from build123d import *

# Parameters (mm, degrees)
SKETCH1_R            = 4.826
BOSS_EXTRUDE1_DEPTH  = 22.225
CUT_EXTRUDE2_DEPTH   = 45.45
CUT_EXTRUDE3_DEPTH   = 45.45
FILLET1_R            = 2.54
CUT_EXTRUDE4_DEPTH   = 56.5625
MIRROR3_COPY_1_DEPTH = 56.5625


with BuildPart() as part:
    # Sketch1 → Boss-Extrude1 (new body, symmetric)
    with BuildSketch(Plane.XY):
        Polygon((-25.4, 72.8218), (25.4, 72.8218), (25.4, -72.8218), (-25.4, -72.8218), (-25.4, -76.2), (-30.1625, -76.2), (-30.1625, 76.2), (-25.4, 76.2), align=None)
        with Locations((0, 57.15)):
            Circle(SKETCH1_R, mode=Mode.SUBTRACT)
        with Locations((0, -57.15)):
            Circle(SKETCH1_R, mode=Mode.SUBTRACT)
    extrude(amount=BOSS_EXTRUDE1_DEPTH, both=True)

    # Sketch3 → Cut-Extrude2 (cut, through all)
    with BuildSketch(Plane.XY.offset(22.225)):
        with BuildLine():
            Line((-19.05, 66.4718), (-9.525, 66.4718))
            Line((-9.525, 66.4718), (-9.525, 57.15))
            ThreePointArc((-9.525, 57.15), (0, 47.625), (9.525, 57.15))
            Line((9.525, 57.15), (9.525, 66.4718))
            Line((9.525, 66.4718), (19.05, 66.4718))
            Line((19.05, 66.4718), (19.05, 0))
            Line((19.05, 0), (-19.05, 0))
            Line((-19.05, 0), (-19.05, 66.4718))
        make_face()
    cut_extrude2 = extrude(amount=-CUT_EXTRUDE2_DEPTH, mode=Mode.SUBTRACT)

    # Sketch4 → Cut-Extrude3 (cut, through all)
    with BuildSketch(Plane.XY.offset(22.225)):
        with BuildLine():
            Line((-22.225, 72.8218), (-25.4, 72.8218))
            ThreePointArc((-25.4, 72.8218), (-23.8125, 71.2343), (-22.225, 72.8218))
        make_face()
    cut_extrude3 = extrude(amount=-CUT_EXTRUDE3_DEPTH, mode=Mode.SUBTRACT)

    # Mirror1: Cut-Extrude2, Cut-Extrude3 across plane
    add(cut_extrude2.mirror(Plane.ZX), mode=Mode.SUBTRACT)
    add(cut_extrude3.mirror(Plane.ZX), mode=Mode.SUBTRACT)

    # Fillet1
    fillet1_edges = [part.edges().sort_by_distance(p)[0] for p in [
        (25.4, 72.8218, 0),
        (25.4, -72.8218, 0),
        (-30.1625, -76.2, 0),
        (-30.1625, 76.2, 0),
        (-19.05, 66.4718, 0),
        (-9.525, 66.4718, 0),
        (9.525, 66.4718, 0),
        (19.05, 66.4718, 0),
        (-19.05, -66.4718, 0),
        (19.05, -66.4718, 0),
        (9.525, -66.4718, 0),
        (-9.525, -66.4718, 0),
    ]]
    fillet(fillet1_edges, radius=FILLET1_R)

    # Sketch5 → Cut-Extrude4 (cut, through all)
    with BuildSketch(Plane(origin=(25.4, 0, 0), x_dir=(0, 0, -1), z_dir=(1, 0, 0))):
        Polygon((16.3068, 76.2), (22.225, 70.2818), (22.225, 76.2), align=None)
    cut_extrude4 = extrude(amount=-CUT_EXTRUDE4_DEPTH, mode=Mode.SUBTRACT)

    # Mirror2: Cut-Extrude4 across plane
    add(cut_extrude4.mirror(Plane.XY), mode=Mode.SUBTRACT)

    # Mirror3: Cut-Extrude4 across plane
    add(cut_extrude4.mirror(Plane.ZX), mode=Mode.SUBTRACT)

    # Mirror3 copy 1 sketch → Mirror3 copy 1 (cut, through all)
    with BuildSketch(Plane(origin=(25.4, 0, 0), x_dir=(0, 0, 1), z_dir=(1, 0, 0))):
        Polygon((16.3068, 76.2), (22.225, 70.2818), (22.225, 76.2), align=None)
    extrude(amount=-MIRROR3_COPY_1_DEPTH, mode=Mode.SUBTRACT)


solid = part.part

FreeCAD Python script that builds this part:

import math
import FreeCAD as App
import Part
import Sketcher

V = App.Vector
Q = App.Units.Quantity


def edges_at(feature, points):
    """Names of the edges that pass closest to the given points."""
    edges = feature.Shape.Edges
    near = lambda p: min(range(len(edges)), key=lambda i: edges[i].distToShape(Part.Vertex(*p))[0])
    return sorted({f"Edge{near(p) + 1}" for p in points})


def add_polygon(sketch, points):
    """Adds a closed chain of lines whose ends are joined by coincident constraints."""
    first, n = sketch.GeometryCount, len(points)
    for a, b in zip(points, points[1:] + points[:1]):
        sketch.addGeometry(Part.LineSegment(App.Vector(*a, 0), App.Vector(*b, 0)), False)
    for i in range(n):
        sketch.addConstraint(Sketcher.Constraint("Coincident", first + i, 2, first + (i + 1) % n, 1))

doc = App.newDocument("Part")
body = doc.addObject("PartDesign::Body", "Body")

# Sketch on XY plane
sketch1 = body.newObject("Sketcher::SketchObject", "Sketch")
sketch1.AttachmentSupport = (doc.getObject("XY_Plane"), [""])
sketch1.MapMode = "FlatFace"
add_polygon(sketch1, [(25.4, 72.8218), (-25.4, 72.8218), (-25.4, 76.2), (-30.1625, 76.2), (-30.1625, -76.2), (-25.4, -76.2), (-25.4, -72.8218), (25.4, -72.8218)])  # lines 0-7
sketch1.addGeometry(Part.Circle(V(0, -57.15, 0), V(0, 0, 1), 4.826), False)  # 8
sketch1.addGeometry(Part.Circle(V(0, 57.15, 0), V(0, 0, 1), 4.826), False)  # 9
sketch1.addConstraint([
    Sketcher.Constraint("Horizontal", 0),
    Sketcher.Constraint("Vertical", 1),
    Sketcher.Constraint("Horizontal", 2),
    Sketcher.Constraint("Vertical", 3),
    Sketcher.Constraint("Horizontal", 4),
    Sketcher.Constraint("Vertical", 5),
    Sketcher.Constraint("Horizontal", 6),
    Sketcher.Constraint("Vertical", 7),
    Sketcher.Constraint("Equal", 8, 9),
    Sketcher.Constraint("Symmetric", 8, 3, 9, 3, -1, 1),
    Sketcher.Constraint("Symmetric", 0, 2, 6, 2, -1, 1),
    Sketcher.Constraint("Symmetric", 1, 2, 4, 2, -1),
    Sketcher.Constraint("PointOnObject", 8, 3, -2),
    Sketcher.Constraint("Diameter", 8, Q("0.38 in")),
    Sketcher.Constraint("DistanceX", 0, 2, 0, 1, Q("2 in")),
    Sketcher.Constraint("DistanceY", 3, 2, 3, 1, Q("6 in")),
    Sketcher.Constraint("DistanceY", 8, 3, 9, 3, Q("4.5 in")),
    Sketcher.Constraint("DistanceX", 2, 2, 2, 1, Q("0.1875 in")),
    Sketcher.Constraint("DistanceY", 1, 1, 1, 2, Q("0.133 in")),
])
pad1 = body.newObject("PartDesign::Pad", "Pad")
pad1.Profile = sketch1
pad1.Length = Q("1.75 in")
pad1.Midplane = True

# Sketch on XY plane
sketch2 = body.newObject("Sketcher::SketchObject", "Sketch001")
sketch2.AttachmentSupport = (doc.getObject("XY_Plane"), [""])
sketch2.MapMode = "FlatFace"
sketch2.AttachmentOffset = App.Placement(V(0, 0, 0.875 * 25.4), App.Rotation())
sketch2.addGeometry([
    Part.LineSegment(V(-9.525, 66.4718, 0), V(-19.05, 66.4718, 0)),  # 0
    Part.LineSegment(V(-19.05, 66.4718, 0), V(-19.05, 0, 0)),  # 1
    Part.LineSegment(V(-19.05, 0, 0), V(19.05, 0, 0)),  # 2
    Part.LineSegment(V(19.05, 0, 0), V(19.05, 66.4718, 0)),  # 3
    Part.LineSegment(V(19.05, 66.4718, 0), V(9.525, 66.4718, 0)),  # 4
    Part.LineSegment(V(9.525, 66.4718, 0), V(9.525, 57.15, 0)),  # 5
    Part.ArcOfCircle(Part.Circle(V(0, 57.15, 0), V(0, 0, 1), 9.525), math.radians(180), math.radians(360)),  # 6
    Part.LineSegment(V(-9.525, 57.15, 0), V(-9.525, 66.4718, 0)),  # 7
], False)
sketch2.addConstraint([
    Sketcher.Constraint("Coincident", 0, 2, 1, 1),
    Sketcher.Constraint("Coincident", 1, 2, 2, 1),
    Sketcher.Constraint("Coincident", 2, 2, 3, 1),
    Sketcher.Constraint("Coincident", 3, 2, 4, 1),
    Sketcher.Constraint("Coincident", 4, 2, 5, 1),
    Sketcher.Constraint("Tangent", 5, 2, 6, 2),
    Sketcher.Constraint("Tangent", 6, 1, 7, 1),
    Sketcher.Constraint("Coincident", 7, 2, 0, 1),
    Sketcher.Constraint("Horizontal", 0),
    Sketcher.Constraint("Vertical", 1),
    Sketcher.Constraint("Horizontal", 2),
    Sketcher.Constraint("Vertical", 3),
    Sketcher.Constraint("Horizontal", 4),
    Sketcher.Constraint("Vertical", 5),
    Sketcher.Constraint("Vertical", 7),
    Sketcher.Constraint("Symmetric", 1, 2, 2, 2, -1, 1),
    Sketcher.Constraint("Symmetric", 4, 2, 7, 2, -2),
    Sketcher.Constraint("DistanceX", 2, 1, 2, 2, Q("1.5 in")),
    Sketcher.Constraint("Radius", 6, Q("0.375 in")),
    Sketcher.Constraint("DistanceY", 1, 2, 1, 1, Q("2.617 in")),
    Sketcher.Constraint("DistanceY", 5, 2, 5, 1, Q("0.367 in")),
])
pocket1 = body.newObject("PartDesign::Pocket", "Pocket")
pocket1.Profile = sketch2
pocket1.Type = "ThroughAll"

# Sketch on XY plane
sketch3 = body.newObject("Sketcher::SketchObject", "Sketch002")
sketch3.AttachmentSupport = (doc.getObject("XY_Plane"), [""])
sketch3.MapMode = "FlatFace"
sketch3.AttachmentOffset = App.Placement(V(0, 0, 0.875 * 25.4), App.Rotation())
sketch3.addGeometry([
    Part.LineSegment(V(-22.225, 72.8218, 0), V(-25.4, 72.8218, 0)),
    Part.ArcOfCircle(Part.Circle(V(-23.8125, 72.8218, 0), V(0, 0, 1), 1.5875), math.radians(180), math.radians(360)),
], False)
sketch3.addConstraint([
    Sketcher.Constraint("Coincident", 0, 1, 1, 2),
    Sketcher.Constraint("Coincident", 1, 1, 0, 2),
    Sketcher.Constraint("Horizontal", 0),
    Sketcher.Constraint("Horizontal", 1, 3, 0, 1),
    Sketcher.Constraint("DistanceX", 1, 1, -1, 1, Q("1 in")),
    Sketcher.Constraint("Radius", 1, Q("0.0625 in")),
    Sketcher.Constraint("DistanceY", -1, 1, 1, 3, Q("2.867 in")),
])
pocket2 = body.newObject("PartDesign::Pocket", "Pocket001")
pocket2.Profile = sketch3
pocket2.Type = "ThroughAll"
doc.recompute()

mirrored = body.newObject("PartDesign::Mirrored", "Mirrored")
mirrored.Originals = [pocket1, pocket2]
mirrored.MirrorPlane = (doc.getObject("XZ_Plane"), [""])
body.Tip = mirrored
doc.recompute()

fillet = body.newObject("PartDesign::Fillet", "Fillet")
fillet.Base = (mirrored, edges_at(mirrored, [
    (25.4, 72.822, 0),
    (25.4, -72.822, 0),
    (-30.163, -76.2, 0),
    (-30.163, 76.2, 0),
    (-19.05, 66.472, 0),
    (-9.525, 66.472, 0),
    (9.525, 66.472, 0),
    (19.05, 66.472, 0),
    (-19.05, -66.472, 0),
    (19.05, -66.472, 0),
    (9.525, -66.472, 0),
    (-9.525, -66.472, 0),
]))
fillet.Radius = Q("0.1 in")

# Sketch on YZ plane
sketch4 = body.newObject("Sketcher::SketchObject", "Sketch003")
sketch4.AttachmentSupport = (doc.getObject("YZ_Plane"), [""])
sketch4.MapMode = "FlatFace"
sketch4.AttachmentOffset = App.Placement(V(0, 0, 1 * 25.4), App.Rotation())
add_polygon(sketch4, [(76.2, -16.3068), (70.2818, -22.225), (76.2, -22.225)])  # lines 0-2
sketch4.addConstraint([
    Sketcher.Constraint("Horizontal", 1),
    Sketcher.Constraint("Vertical", 2),
    Sketcher.Constraint("Equal", 1, 2),
    Sketcher.Constraint("DistanceX", -1, 1, 1, 2, Q("3 in")),
    Sketcher.Constraint("DistanceX", 1, 1, 1, 2, Q("0.233 in")),
    Sketcher.Constraint("DistanceY", 0, 2, -1, 1, Q("0.875 in")),
])
pocket3 = body.newObject("PartDesign::Pocket", "Pocket002")
pocket3.Profile = sketch4
pocket3.Type = "ThroughAll"
doc.recompute()

mirrored2 = body.newObject("PartDesign::Mirrored", "Mirrored001")
mirrored2.Originals = [pocket3]
mirrored2.MirrorPlane = (doc.getObject("XY_Plane"), [""])
body.Tip = mirrored2
doc.recompute()

mirrored3 = body.newObject("PartDesign::Mirrored", "Mirrored002")
mirrored3.Originals = [pocket3]
mirrored3.MirrorPlane = (doc.getObject("XZ_Plane"), [""])
body.Tip = mirrored3

# Sketch on YZ plane
sketch5 = body.newObject("Sketcher::SketchObject", "Sketch004")
sketch5.AttachmentSupport = (doc.getObject("YZ_Plane"), [""])
sketch5.MapMode = "FlatFace"
sketch5.AttachmentOffset = App.Placement(V(0, 0, 1 * 25.4), App.Rotation())
add_polygon(sketch5, [(-76.2, 16.3068), (-70.2818, 22.225), (-76.2, 22.225)])  # lines 0-2
sketch5.addConstraint([
    Sketcher.Constraint("Horizontal", 1),
    Sketcher.Constraint("Vertical", 2),
    Sketcher.Constraint("Equal", 1, 2),
    Sketcher.Constraint("DistanceX", 1, 2, -1, 1, Q("3 in")),
    Sketcher.Constraint("DistanceX", 1, 2, 1, 1, Q("0.233 in")),
    Sketcher.Constraint("DistanceY", -1, 1, 0, 2, Q("0.875 in")),
])
pocket4 = body.newObject("PartDesign::Pocket", "Pocket003")
pocket4.Profile = sketch5
pocket4.Type = "ThroughAll"

doc.recompute()
